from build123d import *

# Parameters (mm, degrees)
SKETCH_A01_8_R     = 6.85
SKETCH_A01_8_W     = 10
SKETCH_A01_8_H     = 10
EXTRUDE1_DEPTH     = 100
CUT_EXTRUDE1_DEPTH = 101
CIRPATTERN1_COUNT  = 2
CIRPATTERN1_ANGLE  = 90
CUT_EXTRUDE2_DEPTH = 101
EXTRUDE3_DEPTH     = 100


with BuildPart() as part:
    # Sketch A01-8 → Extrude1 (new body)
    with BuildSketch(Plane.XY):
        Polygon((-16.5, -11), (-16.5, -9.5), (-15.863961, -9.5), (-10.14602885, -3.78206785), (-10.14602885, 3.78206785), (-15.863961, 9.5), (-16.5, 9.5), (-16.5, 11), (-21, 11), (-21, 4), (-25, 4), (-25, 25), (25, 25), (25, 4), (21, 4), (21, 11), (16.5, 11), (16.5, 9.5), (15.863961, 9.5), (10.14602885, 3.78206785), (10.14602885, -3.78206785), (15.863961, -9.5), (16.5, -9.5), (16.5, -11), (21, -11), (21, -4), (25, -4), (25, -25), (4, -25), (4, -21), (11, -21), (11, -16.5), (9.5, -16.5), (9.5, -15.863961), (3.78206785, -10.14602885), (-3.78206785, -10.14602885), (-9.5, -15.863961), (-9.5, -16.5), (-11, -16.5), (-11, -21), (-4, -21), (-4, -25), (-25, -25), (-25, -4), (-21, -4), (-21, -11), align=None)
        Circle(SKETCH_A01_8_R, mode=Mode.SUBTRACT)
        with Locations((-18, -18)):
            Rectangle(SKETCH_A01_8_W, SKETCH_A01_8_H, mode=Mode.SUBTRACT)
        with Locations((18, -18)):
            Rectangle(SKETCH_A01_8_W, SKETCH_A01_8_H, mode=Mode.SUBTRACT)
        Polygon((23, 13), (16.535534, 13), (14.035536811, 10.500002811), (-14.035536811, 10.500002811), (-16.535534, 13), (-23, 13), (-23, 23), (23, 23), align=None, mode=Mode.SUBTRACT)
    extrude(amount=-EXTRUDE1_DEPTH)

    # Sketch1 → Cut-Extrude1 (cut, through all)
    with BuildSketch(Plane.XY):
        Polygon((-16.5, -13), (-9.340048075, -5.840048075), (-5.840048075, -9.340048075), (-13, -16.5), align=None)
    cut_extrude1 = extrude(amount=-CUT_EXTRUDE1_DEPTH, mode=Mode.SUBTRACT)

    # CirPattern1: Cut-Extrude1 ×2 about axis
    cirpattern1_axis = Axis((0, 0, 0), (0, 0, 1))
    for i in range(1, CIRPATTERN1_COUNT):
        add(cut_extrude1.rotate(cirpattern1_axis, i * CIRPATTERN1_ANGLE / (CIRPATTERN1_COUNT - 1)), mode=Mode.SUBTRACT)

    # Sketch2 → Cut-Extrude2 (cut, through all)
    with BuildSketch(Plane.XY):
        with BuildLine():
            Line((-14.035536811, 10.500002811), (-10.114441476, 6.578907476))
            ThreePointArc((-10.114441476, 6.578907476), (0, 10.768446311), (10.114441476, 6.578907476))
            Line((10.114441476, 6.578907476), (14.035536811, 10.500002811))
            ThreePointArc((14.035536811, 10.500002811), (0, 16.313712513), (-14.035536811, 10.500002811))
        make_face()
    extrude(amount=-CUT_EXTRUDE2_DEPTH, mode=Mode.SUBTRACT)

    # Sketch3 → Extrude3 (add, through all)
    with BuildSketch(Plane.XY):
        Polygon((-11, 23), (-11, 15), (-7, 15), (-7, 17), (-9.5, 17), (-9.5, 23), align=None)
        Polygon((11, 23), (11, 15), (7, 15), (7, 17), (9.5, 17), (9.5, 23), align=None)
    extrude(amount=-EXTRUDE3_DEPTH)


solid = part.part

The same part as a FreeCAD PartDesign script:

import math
import FreeCAD as App
import Part
import Sketcher
from FreeCAD import Vector
Q = App.Units.Quantity

doc = App.newDocument("Part")
params = doc.addObject("Spreadsheet::Sheet", "Params")
for row, (alias, value) in enumerate([
    ("sketch1_diameter", "13.7 mm"),
    ("sketch1_width", "4 mm"),
    ("sketch1_width2", "21 mm"),
    ("sketch1_width3", "7 mm"),
    ("sketch1_width4", "50 mm"),
    ("pad1_length", "100 mm"),
    ("sketch4_width", "4 mm"),
    ("sketch4_height", "8 mm"),
    ("sketch4_height2", "2 mm"),
    ("sketch4_width2", "2.5 mm"),
    ("pad2_length", "100 mm"),
], start=1):
    params.set(f"A{row}", alias)
    params.set(f"B{row}", "=" + value)
    params.setAlias(f"B{row}", alias)

body = doc.addObject("PartDesign::Body", "Body")

sketch1 = body.newObject("Sketcher::SketchObject", "Sketch")
sketch1.AttachmentSupport = (doc.getObject("XY_Plane"), [""])
sketch1.MapMode = "FlatFace"
sketch1.addGeometry(Part.LineSegment(Vector(-16.5, -9.5, 0), Vector(-16.5, -11, 0)), False)
sketch1.addGeometry(Part.LineSegment(Vector(-16.5, -11, 0), Vector(-21, -11, 0)), False)
sketch1.addGeometry(Part.LineSegment(Vector(-21, -11, 0), Vector(-21, -4, 0)), False)
sketch1.addGeometry(Part.LineSegment(Vector(-21, -4, 0), Vector(-25, -4, 0)), False)
sketch1.addGeometry(Part.LineSegment(Vector(-25, -4, 0), Vector(-25, -25, 0)), False)
sketch1.addGeometry(Part.LineSegment(Vector(-25, -25, 0), Vector(-4, -25, 0)), False)
sketch1.addGeometry(Part.LineSegment(Vector(-4, -25, 0), Vector(-4, -21, 0)), False)
sketch1.addGeometry(Part.LineSegment(Vector(-4, -21, 0), Vector(-11, -21, 0)), False)
sketch1.addGeometry(Part.LineSegment(Vector(-11, -21, 0), Vector(-11, -16.5, 0)), False)
sketch1.addGeometry(Part.LineSegment(Vector(-11, -16.5, 0), Vector(-9.5, -16.5, 0)), False)
sketch1.addGeometry(Part.LineSegment(Vector(-9.5, -16.5, 0), Vector(-9.5, -15.9, 0)), False)
sketch1.addGeometry(Part.LineSegment(Vector(-9.5, -15.9, 0), Vector(-3.8, -10.1, 0)), False)
sketch1.addGeometry(Part.LineSegment(Vector(-3.8, -10.1, 0), Vector(3.8, -10.1, 0)), False)
sketch1.addGeometry(Part.LineSegment(Vector(3.8, -10.1, 0), Vector(9.5, -15.9, 0)), False)
sketch1.addGeometry(Part.LineSegment(Vector(9.5, -15.9, 0), Vector(9.5, -16.5, 0)), False)
sketch1.addGeometry(Part.LineSegment(Vector(9.5, -16.5, 0), Vector(11, -16.5, 0)), False)
sketch1.addGeometry(Part.LineSegment(Vector(11, -16.5, 0), Vector(11, -21, 0)), False)
sketch1.addGeometry(Part.LineSegment(Vector(11, -21, 0), Vector(4, -21, 0)), False)
sketch1.addGeometry(Part.LineSegment(Vector(4, -21, 0), Vector(4, -25, 0)), False)
sketch1.addGeometry(Part.LineSegment(Vector(4, -25, 0), Vector(25, -25, 0)), False)
sketch1.addGeometry(Part.LineSegment(Vector(25, -25, 0), Vector(25, -4, 0)), False)
sketch1.addGeometry(Part.LineSegment(Vector(25, -4, 0), Vector(21, -4, 0)), False)
sketch1.addGeometry(Part.LineSegment(Vector(21, -4, 0), Vector(21, -11, 0)), False)
sketch1.addGeometry(Part.LineSegment(Vector(21, -11, 0), Vector(16.5, -11, 0)), False)
sketch1.addGeometry(Part.LineSegment(Vector(16.5, -11, 0), Vector(16.5, -9.5, 0)), False)
sketch1.addGeometry(Part.LineSegment(Vector(16.5, -9.5, 0), Vector(15.9, -9.5, 0)), False)
sketch1.addGeometry(Part.LineSegment(Vector(15.9, -9.5, 0), Vector(10.1, -3.8, 0)), False)
sketch1.addGeometry(Part.LineSegment(Vector(10.1, -3.8, 0), Vector(10.1, 3.8, 0)), False)
sketch1.addGeometry(Part.LineSegment(Vector(10.1, 3.8, 0), Vector(15.9, 9.5, 0)), False)
sketch1.addGeometry(Part.LineSegment(Vector(15.9, 9.5, 0), Vector(16.5, 9.5, 0)), False)
sketch1.addGeometry(Part.LineSegment(Vector(16.5, 9.5, 0), Vector(16.5, 11, 0)), False)
sketch1.addGeometry(Part.LineSegment(Vector(16.5, 11, 0), Vector(21, 11, 0)), False)
sketch1.addGeometry(Part.LineSegment(Vector(21, 11, 0), Vector(21, 4, 0)), False)
sketch1.addGeometry(Part.LineSegment(Vector(21, 4, 0), Vector(25, 4, 0)), False)
sketch1.addGeometry(Part.LineSegment(Vector(25, 4, 0), Vector(25, 25, 0)), False)
sketch1.addGeometry(Part.LineSegment(Vector(25, 25, 0), Vector(-25, 25, 0)), False)
sketch1.addGeometry(Part.LineSegment(Vector(-25, 25, 0), Vector(-25, 4, 0)), False)
sketch1.addGeometry(Part.LineSegment(Vector(-25, 4, 0), Vector(-21, 4, 0)), False)
sketch1.addGeometry(Part.LineSegment(Vector(-21, 4, 0), Vector(-21, 11, 0)), False)
sketch1.addGeometry(Part.LineSegment(Vector(-21, 11, 0), Vector(-16.5, 11, 0)), False)
sketch1.addGeometry(Part.LineSegment(Vector(-16.5, 11, 0), Vector(-16.5, 9.5, 0)), False)
sketch1.addGeometry(Part.LineSegment(Vector(-16.5, 9.5, 0), Vector(-15.9, 9.5, 0)), False)
sketch1.addGeometry(Part.LineSegment(Vector(-15.9, 9.5, 0), Vector(-10.1, 3.8, 0)), False)
sketch1.addGeometry(Part.LineSegment(Vector(-10.1, 3.8, 0), Vector(-10.1, -3.8, 0)), False)
sketch1.addGeometry(Part.LineSegment(Vector(-10.1, -3.8, 0), Vector(-15.9, -9.5, 0)), False)
sketch1.addGeometry(Part.LineSegment(Vector(-15.9, -9.5, 0), Vector(-16.5, -9.5, 0)), False)
sketch1.addGeometry(Part.LineSegment(Vector(13, -23, 0), Vector(13, -13, 0)), False)
sketch1.addGeometry(Part.LineSegment(Vector(13, -13, 0), Vector(23, -13, 0)), False)
sketch1.addGeometry(Part.LineSegment(Vector(23, -13, 0), Vector(23, -23, 0)), False)
sketch1.addGeometry(Part.LineSegment(Vector(23, -23, 0), Vector(13, -23, 0)), False)
sketch1.addGeometry(Part.LineSegment(Vector(-23, -23, 0), Vector(-23, -13, 0)), False)
sketch1.addGeometry(Part.LineSegment(Vector(-23, -13, 0), Vector(-13, -13, 0)), False)
sketch1.addGeometry(Part.LineSegment(Vector(-13, -13, 0), Vector(-13, -23, 0)), False)
sketch1.addGeometry(Part.LineSegment(Vector(-13, -23, 0), Vector(-23, -23, 0)), False)
sketch1.addGeometry(Part.Circle(Vector(0, 0, 0), Vector(0, 0, 1), 6.8), False)
sketch1.addGeometry(Part.LineSegment(Vector(23, 13, 0), Vector(16.5, 13, 0)), False)
sketch1.addGeometry(Part.LineSegment(Vector(16.5, 13, 0), Vector(14, 10.5, 0)), False)
sketch1.addGeometry(Part.LineSegment(Vector(14, 10.5, 0), Vector(-14, 10.5, 0)), False)
sketch1.addGeometry(Part.LineSegment(Vector(-14, 10.5, 0), Vector(-16.5, 13, 0)), False)
sketch1.addGeometry(Part.LineSegment(Vector(-16.5, 13, 0), Vector(-23, 13, 0)), False)
sketch1.addGeometry(Part.LineSegment(Vector(-23, 13, 0), Vector(-23, 23, 0)), False)
sketch1.addGeometry(Part.LineSegment(Vector(-23, 23, 0), Vector(23, 23, 0)), False)
sketch1.addGeometry(Part.LineSegment(Vector(23, 23, 0), Vector(23, 13, 0)), False)
sketch1.addConstraint(Sketcher.Constraint("Coincident", 0, 2, 1, 1))
sketch1.addConstraint(Sketcher.Constraint("Coincident", 1, 2, 2, 1))
sketch1.addConstraint(Sketcher.Constraint("Coincident", 2, 2, 3, 1))
sketch1.addConstraint(Sketcher.Constraint("Coincident", 3, 2, 4, 1))
sketch1.addConstraint(Sketcher.Constraint("Coincident", 4, 2, 5, 1))
sketch1.addConstraint(Sketcher.Constraint("Coincident", 5, 2, 6, 1))
sketch1.addConstraint(Sketcher.Constraint("Coincident", 6, 2, 7, 1))
sketch1.addConstraint(Sketcher.Constraint("Coincident", 7, 2, 8, 1))
sketch1.addConstraint(Sketcher.Constraint("Coincident", 8, 2, 9, 1))
sketch1.addConstraint(Sketcher.Constraint("Coincident", 9, 2, 10, 1))
sketch1.addConstraint(Sketcher.Constraint("Coincident", 10, 2, 11, 1))
sketch1.addConstraint(Sketcher.Constraint("Coincident", 11, 2, 12, 1))
sketch1.addConstraint(Sketcher.Constraint("Coincident", 12, 2, 13, 1))
sketch1.addConstraint(Sketcher.Constraint("Coincident", 13, 2, 14, 1))
sketch1.addConstraint(Sketcher.Constraint("Coincident", 14, 2, 15, 1))
sketch1.addConstraint(Sketcher.Constraint("Coincident", 15, 2, 16, 1))
sketch1.addConstraint(Sketcher.Constraint("Coincident", 16, 2, 17, 1))
sketch1.addConstraint(Sketcher.Constraint("Coincident", 17, 2, 18, 1))
sketch1.addConstraint(Sketcher.Constraint("Coincident", 18, 2, 19, 1))
sketch1.addConstraint(Sketcher.Constraint("Coincident", 19, 2, 20, 1))
sketch1.addConstraint(Sketcher.Constraint("Coincident", 20, 2, 21, 1))
sketch1.addConstraint(Sketcher.Constraint("Coincident", 21, 2, 22, 1))
sketch1.addConstraint(Sketcher.Constraint("Coincident", 22, 2, 23, 1))
sketch1.addConstraint(Sketcher.Constraint("Coincident", 23, 2, 24, 1))
sketch1.addConstraint(Sketcher.Constraint("Coincident", 24, 2, 25, 1))
sketch1.addConstraint(Sketcher.Constraint("Coincident", 25, 2, 26, 1))
sketch1.addConstraint(Sketcher.Constraint("Coincident", 26, 2, 27, 1))
sketch1.addConstraint(Sketcher.Constraint("Coincident", 27, 2, 28, 1))
sketch1.addConstraint(Sketcher.Constraint("Coincident", 28, 2, 29, 1))
sketch1.addConstraint(Sketcher.Constraint("Coincident", 29, 2, 30, 1))
sketch1.addConstraint(Sketcher.Constraint("Coincident", 30, 2, 31, 1))
sketch1.addConstraint(Sketcher.Constraint("Coincident", 31, 2, 32, 1))
sketch1.addConstraint(Sketcher.Constraint("Coincident", 32, 2, 33, 1))
sketch1.addConstraint(Sketcher.Constraint("Coincident", 33, 2, 34, 1))
sketch1.addConstraint(Sketcher.Constraint("Coincident", 34, 2, 35, 1))
sketch1.addConstraint(Sketcher.Constraint("Coincident", 35, 2, 36, 1))
sketch1.addConstraint(Sketcher.Constraint("Coincident", 36, 2, 37, 1))
sketch1.addConstraint(Sketcher.Constraint("Coincident", 37, 2, 38, 1))
sketch1.addConstraint(Sketcher.Constraint("Coincident", 38, 2, 39, 1))
sketch1.addConstraint(Sketcher.Constraint("Coincident", 39, 2, 40, 1))
sketch1.addConstraint(Sketcher.Constraint("Coincident", 40, 2, 41, 1))
sketch1.addConstraint(Sketcher.Constraint("Coincident", 41, 2, 42, 1))
sketch1.addConstraint(Sketcher.Constraint("Coincident", 42, 2, 43, 1))
sketch1.addConstraint(Sketcher.Constraint("Coincident", 43, 2, 44, 1))
sketch1.addConstraint(Sketcher.Constraint("Coincident", 44, 2, 45, 1))
sketch1.addConstraint(Sketcher.Constraint("Coincident", 45, 2, 0, 1))
sketch1.addConstraint(Sketcher.Constraint("Coincident", 46, 2, 47, 1))
sketch1.addConstraint(Sketcher.Constraint("Coincident", 47, 2, 48, 1))
sketch1.addConstraint(Sketcher.Constraint("Coincident", 48, 2, 49, 1))
sketch1.addConstraint(Sketcher.Constraint("Coincident", 49, 2, 46, 1))
sketch1.addConstraint(Sketcher.Constraint("Coincident", 50, 2, 51, 1))
sketch1.addConstraint(Sketcher.Constraint("Coincident", 51, 2, 52, 1))
sketch1.addConstraint(Sketcher.Constraint("Coincident", 52, 2, 53, 1))
sketch1.addConstraint(Sketcher.Constraint("Coincident", 53, 2, 50, 1))
sketch1.addConstraint(Sketcher.Constraint("Coincident", 55, 2, 56, 1))
sketch1.addConstraint(Sketcher.Constraint("Coincident", 56, 2, 57, 1))
sketch1.addConstraint(Sketcher.Constraint("Coincident", 57, 2, 58, 1))
sketch1.addConstraint(Sketcher.Constraint("Coincident", 58, 2, 59, 1))
sketch1.addConstraint(Sketcher.Constraint("Coincident", 59, 2, 60, 1))
sketch1.addConstraint(Sketcher.Constraint("Coincident", 60, 2, 61, 1))
sketch1.addConstraint(Sketcher.Constraint("Coincident", 61, 2, 62, 1))
sketch1.addConstraint(Sketcher.Constraint("Coincident", 62, 2, 55, 1))
sketch1.addConstraint(Sketcher.Constraint("Vertical", 0))
sketch1.addConstraint(Sketcher.Constraint("Horizontal", 1))
sketch1.addConstraint(Sketcher.Constraint("Vertical", 2))
sketch1.addConstraint(Sketcher.Constraint("Horizontal", 3))
sketch1.addConstraint(Sketcher.Constraint("Vertical", 4))
sketch1.addConstraint(Sketcher.Constraint("Horizontal", 5))
sketch1.addConstraint(Sketcher.Constraint("Vertical", 6))
sketch1.addConstraint(Sketcher.Constraint("Horizontal", 7))
sketch1.addConstraint(Sketcher.Constraint("Vertical", 8))
sketch1.addConstraint(Sketcher.Constraint("Horizontal", 9))
sketch1.addConstraint(Sketcher.Constraint("Vertical", 10))
sketch1.addConstraint(Sketcher.Constraint("Horizontal", 12))
sketch1.addConstraint(Sketcher.Constraint("Vertical", 14))
sketch1.addConstraint(Sketcher.Constraint("Horizontal", 15))
sketch1.addConstraint(Sketcher.Constraint("Vertical", 16))
sketch1.addConstraint(Sketcher.Constraint("Horizontal", 17))
sketch1.addConstraint(Sketcher.Constraint("Vertical", 18))
sketch1.addConstraint(Sketcher.Constraint("Horizontal", 19))
sketch1.addConstraint(Sketcher.Constraint("Vertical", 20))
sketch1.addConstraint(Sketcher.Constraint("Horizontal", 21))
sketch1.addConstraint(Sketcher.Constraint("Vertical", 22))
sketch1.addConstraint(Sketcher.Constraint("Horizontal", 23))
sketch1.addConstraint(Sketcher.Constraint("Vertical", 24))
sketch1.addConstraint(Sketcher.Constraint("Horizontal", 25))
sketch1.addConstraint(Sketcher.Constraint("Vertical", 27))
sketch1.addConstraint(Sketcher.Constraint("Horizontal", 29))
sketch1.addConstraint(Sketcher.Constraint("Vertical", 30))
sketch1.addConstraint(Sketcher.Constraint("Horizontal", 31))
sketch1.addConstraint(Sketcher.Constraint("Vertical", 32))
sketch1.addConstraint(Sketcher.Constraint("Horizontal", 33))
sketch1.addConstraint(Sketcher.Constraint("Vertical", 34))
sketch1.addConstraint(Sketcher.Constraint("Horizontal", 35))
sketch1.addConstraint(Sketcher.Constraint("Vertical", 36))
sketch1.addConstraint(Sketcher.Constraint("Horizontal", 37))
sketch1.addConstraint(Sketcher.Constraint("Vertical", 38))
sketch1.addConstraint(Sketcher.Constraint("Horizontal", 39))
sketch1.addConstraint(Sketcher.Constraint("Vertical", 40))
sketch1.addConstraint(Sketcher.Constraint("Horizontal", 41))
sketch1.addConstraint(Sketcher.Constraint("Vertical", 43))
sketch1.addConstraint(Sketcher.Constraint("Horizontal", 45))
sketch1.addConstraint(Sketcher.Constraint("Vertical", 46))
sketch1.addConstraint(Sketcher.Constraint("Horizontal", 47))
sketch1.addConstraint(Sketcher.Constraint("Vertical", 48))
sketch1.addConstraint(Sketcher.Constraint("Horizontal", 49))
sketch1.addConstraint(Sketcher.Constraint("Vertical", 50))
sketch1.addConstraint(Sketcher.Constraint("Horizontal", 51))
sketch1.addConstraint(Sketcher.Constraint("Vertical", 52))
sketch1.addConstraint(Sketcher.Constraint("Horizontal", 53))
sketch1.addConstraint(Sketcher.Constraint("Horizontal", 55))
sketch1.addConstraint(Sketcher.Constraint("Horizontal", 57))
sketch1.addConstraint(Sketcher.Constraint("Horizontal", 59))
sketch1.addConstraint(Sketcher.Constraint("Vertical", 60))
sketch1.addConstraint(Sketcher.Constraint("Horizontal", 61))
sketch1.addConstraint(Sketcher.Constraint("Vertical", 62))
sketch1.addConstraint(Sketcher.Constraint("Coincident", 54, 3, -1, 1))
sketch1.addConstraint(Sketcher.Constraint("Symmetric", 0, 2, 30, 2, -1, 1))
sketch1.addConstraint(Sketcher.Constraint("Symmetric", 2, 2, 32, 2, -1, 1))
sketch1.addConstraint(Sketcher.Constraint("Symmetric", 4, 2, 34, 2, -1, 1))
sketch1.addConstraint(Sketcher.Constraint("Symmetric", 19, 2, 35, 2, -1, 1))
sketch1.addConstraint(Sketcher.Constraint("Symmetric", 21, 2, 37, 2, -1, 1))
sketch1.addConstraint(Sketcher.Constraint("Symmetric", 23, 2, 39, 2, -1, 1))
sketch1.addConstraint(Sketcher.Constraint("Symmetric", 25, 2, 41, 2, -1, 1))
sketch1.addConstraint(Sketcher.Constraint("Symmetric", 26, 2, 42, 2, -1, 1))
sketch1.addConstraint(Sketcher.Constraint("Symmetric", 28, 2, 44, 2, -1, 1))
sketch1.addConstraint(Sketcher.Constraint("Symmetric", 47, 2, 59, 2, -1, 1))
sketch1.addConstraint(Sketcher.Constraint("Symmetric", 53, 2, 61, 2, -1, 1))
sketch1.addConstraint(Sketcher.Constraint("Symmetric", 10, 2, 13, 2, -2))
sketch1.addConstraint(Sketcher.Constraint("Symmetric", 8, 2, 15, 2, -2))
sketch1.addConstraint(Sketcher.Constraint("Symmetric", 6, 2, 17, 2, -2))
sketch1.addConstraint(Sketcher.Constraint("Symmetric", 3, 2, 20, 2, -2))
sketch1.addConstraint(Sketcher.Constraint("Symmetric", 1, 2, 22, 2, -2))
sketch1.addConstraint(Sketcher.Constraint("Symmetric", 29, 2, 40, 2, -2))
sketch1.addConstraint(Sketcher.Constraint("Symmetric", 47, 2, 50, 2, -2))
sketch1.addConstraint(Sketcher.Constraint("Symmetric", 49, 2, 52, 2, -2))
sketch1.addConstraint(Sketcher.Constraint("Symmetric", 55, 2, 58, 2, -2))
sketch1.addConstraint(Sketcher.Constraint("Perpendicular", 11, 13))
sketch1.addConstraint(Sketcher.Constraint("Parallel", 13, 26))
sketch1.addConstraint(Sketcher.Constraint("Perpendicular", 26, 28))
sketch1.addConstraint(Sketcher.Constraint("Perpendicular", 42, 44))
sketch1.addConstraint(Sketcher.Constraint("Parallel", 44, 56))
sketch1.addConstraint(Sketcher.Constraint("Perpendicular", 56, 58))
sketch1.addConstraint(Sketcher.Constraint("Horizontal", 27, 2, 42, 2))
sketch1.addConstraint(Sketcher.Constraint("Vertical", 25, 2, 28, 2))
sketch1.addConstraint(Sketcher.Constraint("Equal", 15, 0))
sketch1.addConstraint(Sketcher.Constraint("Equal", 17, 2))
sketch1.addConstraint(Sketcher.Constraint("Equal", 19, 4))
sketch1.addConstraint(Sketcher.Constraint("Equal", 37, 6))
sketch1.addConstraint(Sketcher.Constraint("Equal", 39, 8))
sketch1.addConstraint(Sketcher.Constraint("Equal", 45, 10))
sketch1.addConstraint(Sketcher.Constraint("Equal", 12, 27))
sketch1.addConstraint(Sketcher.Constraint("Equal", 53, 46))
sketch1.addConstraint(Sketcher.Constraint("Equal", 13, 26))
sketch1.addConstraint(Sketcher.Constraint("Diameter", 54, Q("13.7 mm")))
sketch1.addConstraint(Sketcher.Constraint("DistanceX", 3, 2, 3, 1, Q("4 mm")))
sketch1.addConstraint(Sketcher.Constraint("DistanceX", 5, 1, 5, 2, Q("21 mm")))
sketch1.addConstraint(Sketcher.Constraint("DistanceX", 7, 2, 7, 1, Q("7 mm")))
sketch1.addConstraint(Sketcher.Constraint("DistanceX", 35, 2, 35, 1, Q("50 mm")))
sketch1.addConstraint(Sketcher.Constraint("DistanceX", 47, 1, 47, 2, Q("10 mm")))
sketch1.addConstraint(Sketcher.Constraint("DistanceX", 61, 1, 61, 2, Q("46 mm")))
sketch1.addConstraint(Sketcher.Constraint("DistanceX", 1, 2, 1, 1, Q("4.5 mm")))
sketch1.addConstraint(Sketcher.Constraint("DistanceX", 9, 1, 9, 2, Q("1.5 mm")))
sketch1.addConstraint(Sketcher.Constraint("DistanceY", 46, 2, -1, 1, Q("13 mm")))
sketch1.addConstraint(Sketcher.Constraint("DistanceX", 25, 2, 25, 1, Q("0.636039 mm")))
sketch1.addConstraint(Sketcher.Constraint("Distance", 56, Q("3.53553 mm")))
sketch1.addConstraint(Sketcher.Constraint("DistanceX", 12, 1, 12, 2, Q("7.564136 mm")))
sketch1.addConstraint(Sketcher.Constraint("DistanceX", 55, 2, 55, 1, Q("6.464466 mm")))
sketch1.setExpression("Constraints[154]", "Params.sketch1_diameter")
sketch1.setExpression("Constraints[155]", "Params.sketch1_width")
sketch1.setExpression("Constraints[156]", "Params.sketch1_width2")
sketch1.setExpression("Constraints[157]", "Params.sketch1_width3")
sketch1.setExpression("Constraints[158]", "Params.sketch1_width4")
pad1 = body.newObject("PartDesign::Pad", "Pad")
pad1.Profile = sketch1
pad1.setExpression("Length", "Params.pad1_length")
pad1.Reversed = True

sketch2 = body.newObject("Sketcher::SketchObject", "Sketch001")
sketch2.AttachmentSupport = (doc.getObject("XY_Plane"), [""])
sketch2.MapMode = "FlatFace"
sketch2.addGeometry(Part.LineSegment(Vector(-9.3, -5.8, 0), Vector(-16.5, -13, 0)), False)
sketch2.addGeometry(Part.LineSegment(Vector(-16.5, -13, 0), Vector(-13, -16.5, 0)), False)
sketch2.addGeometry(Part.LineSegment(Vector(-13, -16.5, 0), Vector(-5.8, -9.3, 0)), False)
sketch2.addGeometry(Part.LineSegment(Vector(-5.8, -9.3, 0), Vector(-9.3, -5.8, 0)), False)
sketch2.addConstraint(Sketcher.Constraint("Coincident", 0, 2, 1, 1))
sketch2.addConstraint(Sketcher.Constraint("Coincident", 1, 2, 2, 1))
sketch2.addConstraint(Sketcher.Constraint("Coincident", 2, 2, 3, 1))
sketch2.addConstraint(Sketcher.Constraint("Coincident", 3, 2, 0, 1))
sketch2.addConstraint(Sketcher.Constraint("Perpendicular", 0, 1))
sketch2.addConstraint(Sketcher.Constraint("Perpendicular", 1, 2))
sketch2.addConstraint(Sketcher.Constraint("Perpendicular", 2, 3))
sketch2.addConstraint(Sketcher.Constraint("Angle", 0, Q("-135 deg")))
sketch2.addConstraint(Sketcher.Constraint("DistanceY", 0, 2, -1, 1, Q("13 mm")))
sketch2.addConstraint(Sketcher.Constraint("DistanceX", 1, 2, -1, 1, Q("13 mm")))
sketch2.addConstraint(Sketcher.Constraint("DistanceX", 0, 2, -1, 1, Q("16.5 mm")))
sketch2.addConstraint(Sketcher.Constraint("Distance", 0, Q("10.125701 mm")))
pocket1 = body.newObject("PartDesign::Pocket", "Pocket")
pocket1.Profile = sketch2
pocket1.Type = "ThroughAll"
doc.recompute()

polarpattern = body.newObject("PartDesign::PolarPattern", "PolarPattern")
polarpattern.Originals = [pocket1]
polarpattern.Axis = (doc.getObject("Z_Axis"), [""])
polarpattern.Angle = 90
polarpattern.Occurrences = 2
body.Tip = polarpattern

sketch3 = body.newObject("Sketcher::SketchObject", "Sketch002")
sketch3.AttachmentSupport = (doc.getObject("XY_Plane"), [""])
sketch3.MapMode = "FlatFace"
sketch3.addGeometry(Part.LineSegment(Vector(-14, 11, 0), Vector(-10, 7, 0)), False)
sketch3.addGeometry(Part.ArcOfCircle(Part.Circle(Vector(0, -4, 0), Vector(0, 0, 1), 14), math.radians(45), math.radians(135)), False)
sketch3.addGeometry(Part.LineSegment(Vector(10, 7, 0), Vector(14, 11, 0)), False)
sketch3.addGeometry(Part.ArcOfCircle(Part.Circle(Vector(0, -4, 0), Vector(0, 0, 1), 20), math.radians(45), math.radians(135)), False)
sketch3.addConstraint(Sketcher.Constraint("Coincident", 0, 2, 1, 2))
sketch3.addConstraint(Sketcher.Constraint("Coincident", 1, 1, 2, 1))
sketch3.addConstraint(Sketcher.Constraint("Coincident", 2, 2, 3, 1))
sketch3.addConstraint(Sketcher.Constraint("Coincident", 3, 2, 0, 1))
sketch3.addConstraint(Sketcher.Constraint("Coincident", 3, 3, 1, 3))
sketch3.addConstraint(Sketcher.Constraint("Symmetric", 0, 2, 1, 1, -2))
sketch3.addConstraint(Sketcher.Constraint("Perpendicular", 0, 2))
sketch3.addConstraint(Sketcher.Constraint("Horizontal", 2, 2, 3, 2))
sketch3.addConstraint(Sketcher.Constraint("Radius", 1, Q("14.30398 mm")))
sketch3.addConstraint(Sketcher.Constraint("Radius", 3, Q("19.849247 mm")))
sketch3.addConstraint(Sketcher.Constraint("DistanceX", 0, 2, -1, 1, Q("10.114441 mm")))
sketch3.addConstraint(Sketcher.Constraint("DistanceY", 1, 3, -1, 1, Q("3.535534 mm")))
pocket2 = body.newObject("PartDesign::Pocket", "Pocket001")
pocket2.Profile = sketch3
pocket2.Type = "ThroughAll"

sketch4 = body.newObject("Sketcher::SketchObject", "Sketch003")
sketch4.AttachmentSupport = (doc.getObject("XY_Plane"), [""])
sketch4.MapMode = "FlatFace"
sketch4.addGeometry(Part.LineSegment(Vector(-11, 23, 0), Vector(-11, 15, 0)), False)
sketch4.addGeometry(Part.LineSegment(Vector(-11, 15, 0), Vector(-7, 15, 0)), False)
sketch4.addGeometry(Part.LineSegment(Vector(-7, 15, 0), Vector(-7, 17, 0)), False)
sketch4.addGeometry(Part.LineSegment(Vector(-7, 17, 0), Vector(-9.5, 17, 0)), False)
sketch4.addGeometry(Part.LineSegment(Vector(-9.5, 17, 0), Vector(-9.5, 23, 0)), False)
sketch4.addGeometry(Part.LineSegment(Vector(-9.5, 23, 0), Vector(-11, 23, 0)), False)
sketch4.addGeometry(Part.LineSegment(Vector(11, 15, 0), Vector(11, 23, 0)), False)
sketch4.addGeometry(Part.LineSegment(Vector(11, 23, 0), Vector(9.5, 23, 0)), False)
sketch4.addGeometry(Part.LineSegment(Vector(9.5, 23, 0), Vector(9.5, 17, 0)), False)
sketch4.addGeometry(Part.LineSegment(Vector(9.5, 17, 0), Vector(7, 17, 0)), False)
sketch4.addGeometry(Part.LineSegment(Vector(7, 17, 0), Vector(7, 15, 0)), False)
sketch4.addGeometry(Part.LineSegment(Vector(7, 15, 0), Vector(11, 15, 0)), False)
sketch4.addConstraint(Sketcher.Constraint("Coincident", 0, 2, 1, 1))
sketch4.addConstraint(Sketcher.Constraint("Coincident", 1, 2, 2, 1))
sketch4.addConstraint(Sketcher.Constraint("Coincident", 2, 2, 3, 1))
sketch4.addConstraint(Sketcher.Constraint("Coincident", 3, 2, 4, 1))
sketch4.addConstraint(Sketcher.Constraint("Coincident", 4, 2, 5, 1))
sketch4.addConstraint(Sketcher.Constraint("Coincident", 5, 2, 0, 1))
sketch4.addConstraint(Sketcher.Constraint("Coincident", 6, 2, 7, 1))
sketch4.addConstraint(Sketcher.Constraint("Coincident", 7, 2, 8, 1))
sketch4.addConstraint(Sketcher.Constraint("Coincident", 8, 2, 9, 1))
sketch4.addConstraint(Sketcher.Constraint("Coincident", 9, 2, 10, 1))
sketch4.addConstraint(Sketcher.Constraint("Coincident", 10, 2, 11, 1))
sketch4.addConstraint(Sketcher.Constraint("Coincident", 11, 2, 6, 1))
sketch4.addConstraint(Sketcher.Constraint("Vertical", 0))
sketch4.addConstraint(Sketcher.Constraint("Horizontal", 1))
sketch4.addConstraint(Sketcher.Constraint("Vertical", 2))
sketch4.addConstraint(Sketcher.Constraint("Horizontal", 3))
sketch4.addConstraint(Sketcher.Constraint("Vertical", 4))
sketch4.addConstraint(Sketcher.Constraint("Horizontal", 5))
sketch4.addConstraint(Sketcher.Constraint("Vertical", 6))
sketch4.addConstraint(Sketcher.Constraint("Horizontal", 7))
sketch4.addConstraint(Sketcher.Constraint("Vertical", 8))
sketch4.addConstraint(Sketcher.Constraint("Horizontal", 9))
sketch4.addConstraint(Sketcher.Constraint("Vertical", 10))
sketch4.addConstraint(Sketcher.Constraint("Horizontal", 11))
sketch4.addConstraint(Sketcher.Constraint("Symmetric", 5, 2, 6, 2, -2))
sketch4.addConstraint(Sketcher.Constraint("Symmetric", 3, 2, 8, 2, -2))
sketch4.addConstraint(Sketcher.Constraint("Symmetric", 1, 2, 10, 2, -2))
sketch4.addConstraint(Sketcher.Constraint("DistanceX", 1, 1, 1, 2, Q("4 mm")))
sketch4.addConstraint(Sketcher.Constraint("DistanceY", 0, 2, 0, 1, Q("8 mm")))
sketch4.addConstraint(Sketcher.Constraint("DistanceY", 2, 1, 2, 2, Q("2 mm")))
sketch4.addConstraint(Sketcher.Constraint("DistanceX", 3, 2, 3, 1, Q("2.5 mm")))
sketch4.addConstraint(Sketcher.Constraint("DistanceX", 0, 2, -1, 1, Q("11 mm")))
sketch4.addConstraint(Sketcher.Constraint("DistanceY", -1, 1, 0, 2, Q("15 mm")))
sketch4.setExpression("Constraints[27]", "Params.sketch4_width")
sketch4.setExpression("Constraints[28]", "Params.sketch4_height")
sketch4.setExpression("Constraints[29]", "Params.sketch4_height2")
sketch4.setExpression("Constraints[30]", "Params.sketch4_width2")
pad2 = body.newObject("PartDesign::Pad", "Pad001")
pad2.Profile = sketch4
pad2.setExpression("Length", "Params.pad2_length")
pad2.Reversed = True

doc.recompute()
